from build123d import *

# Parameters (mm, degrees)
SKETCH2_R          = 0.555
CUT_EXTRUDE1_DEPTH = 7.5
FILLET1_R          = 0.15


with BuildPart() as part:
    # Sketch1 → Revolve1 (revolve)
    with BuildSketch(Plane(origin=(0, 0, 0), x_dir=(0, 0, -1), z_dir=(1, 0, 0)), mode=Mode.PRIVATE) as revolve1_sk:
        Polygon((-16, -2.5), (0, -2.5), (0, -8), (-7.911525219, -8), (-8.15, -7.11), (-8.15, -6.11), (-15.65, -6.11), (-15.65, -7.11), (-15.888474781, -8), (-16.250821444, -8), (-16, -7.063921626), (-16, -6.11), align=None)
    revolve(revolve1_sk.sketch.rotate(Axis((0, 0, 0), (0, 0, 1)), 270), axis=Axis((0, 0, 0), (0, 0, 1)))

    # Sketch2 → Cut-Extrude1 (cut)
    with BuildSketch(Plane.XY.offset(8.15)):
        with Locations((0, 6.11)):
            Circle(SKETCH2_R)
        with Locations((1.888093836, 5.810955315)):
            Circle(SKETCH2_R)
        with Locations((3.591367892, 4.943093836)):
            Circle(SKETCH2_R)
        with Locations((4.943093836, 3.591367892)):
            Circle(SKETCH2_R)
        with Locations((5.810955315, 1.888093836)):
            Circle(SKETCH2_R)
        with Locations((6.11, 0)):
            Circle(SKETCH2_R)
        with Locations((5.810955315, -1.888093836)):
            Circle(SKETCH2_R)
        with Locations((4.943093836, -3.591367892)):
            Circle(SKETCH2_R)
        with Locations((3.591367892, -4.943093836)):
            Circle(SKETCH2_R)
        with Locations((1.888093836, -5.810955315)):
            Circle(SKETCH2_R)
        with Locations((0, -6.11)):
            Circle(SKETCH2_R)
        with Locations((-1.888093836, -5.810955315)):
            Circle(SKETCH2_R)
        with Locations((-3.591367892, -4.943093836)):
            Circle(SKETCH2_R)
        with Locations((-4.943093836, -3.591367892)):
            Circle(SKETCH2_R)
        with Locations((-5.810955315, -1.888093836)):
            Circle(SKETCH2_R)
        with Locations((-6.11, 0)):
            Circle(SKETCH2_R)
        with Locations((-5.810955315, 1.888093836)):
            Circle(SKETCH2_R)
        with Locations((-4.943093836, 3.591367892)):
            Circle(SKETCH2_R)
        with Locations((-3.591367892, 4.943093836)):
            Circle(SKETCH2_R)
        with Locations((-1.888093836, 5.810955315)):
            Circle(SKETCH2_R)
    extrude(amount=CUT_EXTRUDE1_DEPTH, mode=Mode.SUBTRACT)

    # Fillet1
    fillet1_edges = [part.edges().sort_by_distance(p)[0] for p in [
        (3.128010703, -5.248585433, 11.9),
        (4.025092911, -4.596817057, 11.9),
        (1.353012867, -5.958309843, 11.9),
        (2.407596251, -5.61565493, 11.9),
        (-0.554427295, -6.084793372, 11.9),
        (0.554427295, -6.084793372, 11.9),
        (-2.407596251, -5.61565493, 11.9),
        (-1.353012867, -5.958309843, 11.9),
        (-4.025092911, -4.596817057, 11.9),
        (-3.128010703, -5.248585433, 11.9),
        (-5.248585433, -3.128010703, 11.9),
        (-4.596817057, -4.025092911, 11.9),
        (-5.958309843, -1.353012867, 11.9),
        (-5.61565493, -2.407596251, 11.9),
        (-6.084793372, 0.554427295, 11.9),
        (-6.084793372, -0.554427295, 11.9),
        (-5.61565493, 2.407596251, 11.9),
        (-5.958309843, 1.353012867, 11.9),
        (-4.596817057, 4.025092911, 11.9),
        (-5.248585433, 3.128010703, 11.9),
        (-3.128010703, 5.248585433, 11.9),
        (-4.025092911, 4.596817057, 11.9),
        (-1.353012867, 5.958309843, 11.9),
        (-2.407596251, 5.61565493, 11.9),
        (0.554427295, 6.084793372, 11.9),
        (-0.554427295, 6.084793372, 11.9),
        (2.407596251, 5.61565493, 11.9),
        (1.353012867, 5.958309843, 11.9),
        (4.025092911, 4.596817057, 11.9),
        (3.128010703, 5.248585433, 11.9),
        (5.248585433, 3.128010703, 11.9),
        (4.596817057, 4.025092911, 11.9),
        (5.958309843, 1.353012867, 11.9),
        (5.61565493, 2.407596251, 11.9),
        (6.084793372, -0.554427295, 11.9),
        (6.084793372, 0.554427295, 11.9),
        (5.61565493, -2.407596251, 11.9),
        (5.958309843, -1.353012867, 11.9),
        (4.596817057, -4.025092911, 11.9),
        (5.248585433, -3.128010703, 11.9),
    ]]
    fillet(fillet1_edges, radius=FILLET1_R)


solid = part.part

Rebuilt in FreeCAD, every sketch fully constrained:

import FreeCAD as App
import Part
import Sketcher
from FreeCAD import Vector
Q = App.Units.Quantity


def edges_at(feature, points):
    """Names of the edges that pass closest to the given points."""
    edges = feature.Shape.Edges
    near = lambda p: min(range(len(edges)), key=lambda i: edges[i].distToShape(Part.Vertex(*p))[0])
    return sorted({f"Edge{near(p) + 1}" for p in points})


def add_polygon(sketch, points):
    """Adds a closed chain of lines whose ends are joined by coincident constraints."""
    first, n = sketch.GeometryCount, len(points)
    for a, b in zip(points, points[1:] + points[:1]):
        sketch.addGeometry(Part.LineSegment(App.Vector(*a, 0), App.Vector(*b, 0)), False)
    for i in range(n):
        sketch.addConstraint(Sketcher.Constraint("Coincident", first + i, 2, first + (i + 1) % n, 1))

doc = App.newDocument("Part")
body = doc.addObject("PartDesign::Body", "Body")

# Sketch on YZ plane
sketch1 = body.newObject("Sketcher::SketchObject", "Sketch")
sketch1.AttachmentSupport = (doc.getObject("YZ_Plane"), [""])
sketch1.MapMode = "FlatFace"
add_polygon(sketch1, [(-2.5, 0), (-2.5, 16), (-7.06, 16), (-8, 16.25), (-8, 15.89), (-7.11, 15.65), (-6.11, 15.65), (-6.11, 8.15), (-7.11, 8.15), (-8, 7.91), (-8, 0)])  # lines 0-10
sketch1.addConstraint(Sketcher.Constraint("Vertical", 0))
sketch1.addConstraint(Sketcher.Constraint("Horizontal", 1))
sketch1.addConstraint(Sketcher.Constraint("Vertical", 3))
sketch1.addConstraint(Sketcher.Constraint("Horizontal", 5))
sketch1.addConstraint(Sketcher.Constraint("Vertical", 6))
sketch1.addConstraint(Sketcher.Constraint("Horizontal", 7))
sketch1.addConstraint(Sketcher.Constraint("Vertical", 9))
sketch1.addConstraint(Sketcher.Constraint("Horizontal", 10))
sketch1.addConstraint(Sketcher.Constraint("PointOnObject", 9, 2, -1))
sketch1.addConstraint(Sketcher.Constraint("Parallel", 2, 4))
sketch1.addConstraint(Sketcher.Constraint("Vertical", 4, 2, 7, 2))
sketch1.addConstraint(Sketcher.Constraint("Vertical", 3, 2, 8, 2))
sketch1.addConstraint(Sketcher.Constraint("Equal", 4, 8))
sketch1.addConstraint(Sketcher.Constraint("DistanceX", 5, 1, 5, 2, 1.0))
sketch1.addConstraint(Sketcher.Constraint("DistanceY", 0, 1, 0, 2, 16.0))
sketch1.addConstraint(Sketcher.Constraint("Angle", 2, Q("165 deg")))
sketch1.addConstraint(Sketcher.Constraint("DistanceX", 10, 1, 10, 2, 5.5))
sketch1.addConstraint(Sketcher.Constraint("DistanceY", 6, 2, 6, 1, 7.5))
sketch1.addConstraint(Sketcher.Constraint("DistanceX", 2, 2, -1, 1, 8.0))
sketch1.addConstraint(Sketcher.Constraint("DistanceX", 4, 2, -1, 1, 7.11))
sketch1.addConstraint(Sketcher.Constraint("DistanceY", -1, 1, 4, 2, 15.65))
sketch1.addConstraint(Sketcher.Constraint("Distance", 2, 0.9691))
revolution = body.newObject("PartDesign::Revolution", "Revolution")
revolution.Profile = sketch1
revolution.ReferenceAxis = (sketch1, ["V_Axis"])
revolution.Angle = 360

# Sketch on XY plane
sketch2 = body.newObject("Sketcher::SketchObject", "Sketch001")
sketch2.AttachmentSupport = (doc.getObject("XY_Plane"), [""])
sketch2.MapMode = "FlatFace"
sketch2.AttachmentOffset = App.Placement(Vector(0, 0, 8.15), App.Rotation())
sketch2.addGeometry(Part.Circle(Vector(0, 6.1, 0), Vector(0, 0, 1), 0.6), False)
sketch2.addGeometry(Part.Circle(Vector(1.9, 5.8, 0), Vector(0, 0, 1), 0.6), False)
sketch2.addGeometry(Part.Circle(Vector(3.6, 4.9, 0), Vector(0, 0, 1), 0.6), False)
sketch2.addGeometry(Part.Circle(Vector(4.9, 3.6, 0), Vector(0, 0, 1), 0.6), False)
sketch2.addGeometry(Part.Circle(Vector(5.8, 1.9, 0), Vector(0, 0, 1), 0.6), False)
sketch2.addGeometry(Part.Circle(Vector(6.1, 0, 0), Vector(0, 0, 1), 0.6), False)
sketch2.addGeometry(Part.Circle(Vector(5.8, -1.9, 0), Vector(0, 0, 1), 0.6), False)
sketch2.addGeometry(Part.Circle(Vector(4.9, -3.6, 0), Vector(0, 0, 1), 0.6), False)
sketch2.addGeometry(Part.Circle(Vector(3.6, -4.9, 0), Vector(0, 0, 1), 0.6), False)
sketch2.addGeometry(Part.Circle(Vector(1.9, -5.8, 0), Vector(0, 0, 1), 0.6), False)
sketch2.addGeometry(Part.Circle(Vector(0, -6.1, 0), Vector(0, 0, 1), 0.6), False)
sketch2.addGeometry(Part.Circle(Vector(-1.9, -5.8, 0), Vector(0, 0, 1), 0.6), False)
sketch2.addGeometry(Part.Circle(Vector(-3.6, -4.9, 0), Vector(0, 0, 1), 0.6), False)
sketch2.addGeometry(Part.Circle(Vector(-4.9, -3.6, 0), Vector(0, 0, 1), 0.6), False)
sketch2.addGeometry(Part.Circle(Vector(-5.8, -1.9, 0), Vector(0, 0, 1), 0.6), False)
sketch2.addGeometry(Part.Circle(Vector(-6.1, 0, 0), Vector(0, 0, 1), 0.6), False)
sketch2.addGeometry(Part.Circle(Vector(-5.8, 1.9, 0), Vector(0, 0, 1), 0.6), False)
sketch2.addGeometry(Part.Circle(Vector(-4.9, 3.6, 0), Vector(0, 0, 1), 0.6), False)
sketch2.addGeometry(Part.Circle(Vector(-3.6, 4.9, 0), Vector(0, 0, 1), 0.6), False)
sketch2.addGeometry(Part.Circle(Vector(-1.9, 5.8, 0), Vector(0, 0, 1), 0.6), False)
sketch2.addConstraint(Sketcher.Constraint("Equal", 0, 1))
sketch2.addConstraint(Sketcher.Constraint("Equal", 1, 2))
sketch2.addConstraint(Sketcher.Constraint("Equal", 2, 3))
sketch2.addConstraint(Sketcher.Constraint("Equal", 3, 4))
sketch2.addConstraint(Sketcher.Constraint("Equal", 4, 5))
sketch2.addConstraint(Sketcher.Constraint("Equal", 5, 6))
sketch2.addConstraint(Sketcher.Constraint("Equal", 6, 7))
sketch2.addConstraint(Sketcher.Constraint("Equal", 7, 8))
sketch2.addConstraint(Sketcher.Constraint("Equal", 8, 9))
sketch2.addConstraint(Sketcher.Constraint("Equal", 9, 10))
sketch2.addConstraint(Sketcher.Constraint("Equal", 10, 11))
sketch2.addConstraint(Sketcher.Constraint("Equal", 11, 12))
sketch2.addConstraint(Sketcher.Constraint("Equal", 12, 13))
sketch2.addConstraint(Sketcher.Constraint("Equal", 13, 14))
sketch2.addConstraint(Sketcher.Constraint("Equal", 14, 15))
sketch2.addConstraint(Sketcher.Constraint("Equal", 15, 16))
sketch2.addConstraint(Sketcher.Constraint("Equal", 16, 17))
sketch2.addConstraint(Sketcher.Constraint("Equal", 17, 18))
sketch2.addConstraint(Sketcher.Constraint("Equal", 18, 19))
sketch2.addConstraint(Sketcher.Constraint("Symmetric", 0, 3, 10, 3, -1, 1))
sketch2.addConstraint(Sketcher.Constraint("Symmetric", 1, 3, 11, 3, -1, 1))
sketch2.addConstraint(Sketcher.Constraint("Symmetric", 2, 3, 12, 3, -1, 1))
sketch2.addConstraint(Sketcher.Constraint("Symmetric", 3, 3, 13, 3, -1, 1))
sketch2.addConstraint(Sketcher.Constraint("Symmetric", 4, 3, 14, 3, -1, 1))
sketch2.addConstraint(Sketcher.Constraint("Symmetric", 5, 3, 15, 3, -1, 1))
sketch2.addConstraint(Sketcher.Constraint("Symmetric", 6, 3, 16, 3, -1, 1))
sketch2.addConstraint(Sketcher.Constraint("Symmetric", 7, 3, 17, 3, -1, 1))
sketch2.addConstraint(Sketcher.Constraint("Symmetric", 8, 3, 18, 3, -1, 1))
sketch2.addConstraint(Sketcher.Constraint("Symmetric", 9, 3, 19, 3, -1, 1))
sketch2.addConstraint(Sketcher.Constraint("Symmetric", 9, 3, 11, 3, -2))
sketch2.addConstraint(Sketcher.Constraint("Symmetric", 8, 3, 12, 3, -2))
sketch2.addConstraint(Sketcher.Constraint("Symmetric", 7, 3, 13, 3, -2))
sketch2.addConstraint(Sketcher.Constraint("Symmetric", 6, 3, 14, 3, -2))
sketch2.addConstraint(Sketcher.Constraint("PointOnObject", 0, 3, -2))
sketch2.addConstraint(Sketcher.Constraint("PointOnObject", 5, 3, -1))
sketch2.addConstraint(Sketcher.Constraint("Diameter", 0, 1.11))
sketch2.addConstraint(Sketcher.Constraint("DistanceY", -1, 1, 0, 3, 6.11))
sketch2.addConstraint(Sketcher.Constraint("DistanceX", -1, 1, 5, 3, 6.11))
sketch2.addConstraint(Sketcher.Constraint("DistanceX", 1, 3, 3, 3, 3.055))
sketch2.addConstraint(Sketcher.Constraint("DistanceY", 4, 3, 2, 3, 3.055))
sketch2.addConstraint(Sketcher.Constraint("DistanceY", 2, 3, 1, 3, 0.867861))
sketch2.addConstraint(Sketcher.Constraint("DistanceX", 3, 3, 4, 3, 0.867861))
sketch2.addConstraint(Sketcher.Constraint("DistanceY", 6, 3, 3, 3, 5.479462))
sketch2.addConstraint(Sketcher.Constraint("DistanceY", 6, 3, 1, 3, 7.699049))
sketch2.addConstraint(Sketcher.Constraint("DistanceX", 11, 3, 8, 3, 5.479462))
sketch2.addConstraint(Sketcher.Constraint("DistanceX", 11, 3, 6, 3, 7.699049))
pocket1 = body.newObject("PartDesign::Pocket", "Pocket")
pocket1.Profile = sketch2
pocket1.Length = 7.5
pocket1.Reversed = True
doc.recompute()

fillet = body.newObject("PartDesign::Fillet", "Fillet")
fillet.Base = (pocket1, edges_at(pocket1, [
    (3.128, -5.249, 11.9),
    (4.025, -4.597, 11.9),
    (1.353, -5.958, 11.9),
    (2.408, -5.616, 11.9),
    (-0.554, -6.085, 11.9),
    (0.554, -6.085, 11.9),
    (-2.408, -5.616, 11.9),
    (-1.353, -5.958, 11.9),
    (-4.025, -4.597, 11.9),
    (-3.128, -5.249, 11.9),
    (-5.249, -3.128, 11.9),
    (-4.597, -4.025, 11.9),
    (-5.958, -1.353, 11.9),
    (-5.616, -2.408, 11.9),
    (-6.085, 0.554, 11.9),
    (-6.085, -0.554, 11.9),
    (-5.616, 2.408, 11.9),
    (-5.958, 1.353, 11.9),
    (-4.597, 4.025, 11.9),
    (-5.249, 3.128, 11.9),
    (-3.128, 5.249, 11.9),
    (-4.025, 4.597, 11.9),
    (-1.353, 5.958, 11.9),
    (-2.408, 5.616, 11.9),
    (0.554, 6.085, 11.9),
    (-0.554, 6.085, 11.9),
    (2.408, 5.616, 11.9),
    (1.353, 5.958, 11.9),
    (4.025, 4.597, 11.9),
    (3.128, 5.249, 11.9),
    (5.249, 3.128, 11.9),
    (4.597, 4.025, 11.9),
    (5.958, 1.353, 11.9),
    (5.616, 2.408, 11.9),
    (6.085, -0.554, 11.9),
    (6.085, 0.554, 11.9),
    (5.616, -2.408, 11.9),
    (5.958, -1.353, 11.9),
    (4.597, -4.025, 11.9),
    (5.249, -3.128, 11.9),
]))
fillet.Radius = 0.15

doc.recompute()
